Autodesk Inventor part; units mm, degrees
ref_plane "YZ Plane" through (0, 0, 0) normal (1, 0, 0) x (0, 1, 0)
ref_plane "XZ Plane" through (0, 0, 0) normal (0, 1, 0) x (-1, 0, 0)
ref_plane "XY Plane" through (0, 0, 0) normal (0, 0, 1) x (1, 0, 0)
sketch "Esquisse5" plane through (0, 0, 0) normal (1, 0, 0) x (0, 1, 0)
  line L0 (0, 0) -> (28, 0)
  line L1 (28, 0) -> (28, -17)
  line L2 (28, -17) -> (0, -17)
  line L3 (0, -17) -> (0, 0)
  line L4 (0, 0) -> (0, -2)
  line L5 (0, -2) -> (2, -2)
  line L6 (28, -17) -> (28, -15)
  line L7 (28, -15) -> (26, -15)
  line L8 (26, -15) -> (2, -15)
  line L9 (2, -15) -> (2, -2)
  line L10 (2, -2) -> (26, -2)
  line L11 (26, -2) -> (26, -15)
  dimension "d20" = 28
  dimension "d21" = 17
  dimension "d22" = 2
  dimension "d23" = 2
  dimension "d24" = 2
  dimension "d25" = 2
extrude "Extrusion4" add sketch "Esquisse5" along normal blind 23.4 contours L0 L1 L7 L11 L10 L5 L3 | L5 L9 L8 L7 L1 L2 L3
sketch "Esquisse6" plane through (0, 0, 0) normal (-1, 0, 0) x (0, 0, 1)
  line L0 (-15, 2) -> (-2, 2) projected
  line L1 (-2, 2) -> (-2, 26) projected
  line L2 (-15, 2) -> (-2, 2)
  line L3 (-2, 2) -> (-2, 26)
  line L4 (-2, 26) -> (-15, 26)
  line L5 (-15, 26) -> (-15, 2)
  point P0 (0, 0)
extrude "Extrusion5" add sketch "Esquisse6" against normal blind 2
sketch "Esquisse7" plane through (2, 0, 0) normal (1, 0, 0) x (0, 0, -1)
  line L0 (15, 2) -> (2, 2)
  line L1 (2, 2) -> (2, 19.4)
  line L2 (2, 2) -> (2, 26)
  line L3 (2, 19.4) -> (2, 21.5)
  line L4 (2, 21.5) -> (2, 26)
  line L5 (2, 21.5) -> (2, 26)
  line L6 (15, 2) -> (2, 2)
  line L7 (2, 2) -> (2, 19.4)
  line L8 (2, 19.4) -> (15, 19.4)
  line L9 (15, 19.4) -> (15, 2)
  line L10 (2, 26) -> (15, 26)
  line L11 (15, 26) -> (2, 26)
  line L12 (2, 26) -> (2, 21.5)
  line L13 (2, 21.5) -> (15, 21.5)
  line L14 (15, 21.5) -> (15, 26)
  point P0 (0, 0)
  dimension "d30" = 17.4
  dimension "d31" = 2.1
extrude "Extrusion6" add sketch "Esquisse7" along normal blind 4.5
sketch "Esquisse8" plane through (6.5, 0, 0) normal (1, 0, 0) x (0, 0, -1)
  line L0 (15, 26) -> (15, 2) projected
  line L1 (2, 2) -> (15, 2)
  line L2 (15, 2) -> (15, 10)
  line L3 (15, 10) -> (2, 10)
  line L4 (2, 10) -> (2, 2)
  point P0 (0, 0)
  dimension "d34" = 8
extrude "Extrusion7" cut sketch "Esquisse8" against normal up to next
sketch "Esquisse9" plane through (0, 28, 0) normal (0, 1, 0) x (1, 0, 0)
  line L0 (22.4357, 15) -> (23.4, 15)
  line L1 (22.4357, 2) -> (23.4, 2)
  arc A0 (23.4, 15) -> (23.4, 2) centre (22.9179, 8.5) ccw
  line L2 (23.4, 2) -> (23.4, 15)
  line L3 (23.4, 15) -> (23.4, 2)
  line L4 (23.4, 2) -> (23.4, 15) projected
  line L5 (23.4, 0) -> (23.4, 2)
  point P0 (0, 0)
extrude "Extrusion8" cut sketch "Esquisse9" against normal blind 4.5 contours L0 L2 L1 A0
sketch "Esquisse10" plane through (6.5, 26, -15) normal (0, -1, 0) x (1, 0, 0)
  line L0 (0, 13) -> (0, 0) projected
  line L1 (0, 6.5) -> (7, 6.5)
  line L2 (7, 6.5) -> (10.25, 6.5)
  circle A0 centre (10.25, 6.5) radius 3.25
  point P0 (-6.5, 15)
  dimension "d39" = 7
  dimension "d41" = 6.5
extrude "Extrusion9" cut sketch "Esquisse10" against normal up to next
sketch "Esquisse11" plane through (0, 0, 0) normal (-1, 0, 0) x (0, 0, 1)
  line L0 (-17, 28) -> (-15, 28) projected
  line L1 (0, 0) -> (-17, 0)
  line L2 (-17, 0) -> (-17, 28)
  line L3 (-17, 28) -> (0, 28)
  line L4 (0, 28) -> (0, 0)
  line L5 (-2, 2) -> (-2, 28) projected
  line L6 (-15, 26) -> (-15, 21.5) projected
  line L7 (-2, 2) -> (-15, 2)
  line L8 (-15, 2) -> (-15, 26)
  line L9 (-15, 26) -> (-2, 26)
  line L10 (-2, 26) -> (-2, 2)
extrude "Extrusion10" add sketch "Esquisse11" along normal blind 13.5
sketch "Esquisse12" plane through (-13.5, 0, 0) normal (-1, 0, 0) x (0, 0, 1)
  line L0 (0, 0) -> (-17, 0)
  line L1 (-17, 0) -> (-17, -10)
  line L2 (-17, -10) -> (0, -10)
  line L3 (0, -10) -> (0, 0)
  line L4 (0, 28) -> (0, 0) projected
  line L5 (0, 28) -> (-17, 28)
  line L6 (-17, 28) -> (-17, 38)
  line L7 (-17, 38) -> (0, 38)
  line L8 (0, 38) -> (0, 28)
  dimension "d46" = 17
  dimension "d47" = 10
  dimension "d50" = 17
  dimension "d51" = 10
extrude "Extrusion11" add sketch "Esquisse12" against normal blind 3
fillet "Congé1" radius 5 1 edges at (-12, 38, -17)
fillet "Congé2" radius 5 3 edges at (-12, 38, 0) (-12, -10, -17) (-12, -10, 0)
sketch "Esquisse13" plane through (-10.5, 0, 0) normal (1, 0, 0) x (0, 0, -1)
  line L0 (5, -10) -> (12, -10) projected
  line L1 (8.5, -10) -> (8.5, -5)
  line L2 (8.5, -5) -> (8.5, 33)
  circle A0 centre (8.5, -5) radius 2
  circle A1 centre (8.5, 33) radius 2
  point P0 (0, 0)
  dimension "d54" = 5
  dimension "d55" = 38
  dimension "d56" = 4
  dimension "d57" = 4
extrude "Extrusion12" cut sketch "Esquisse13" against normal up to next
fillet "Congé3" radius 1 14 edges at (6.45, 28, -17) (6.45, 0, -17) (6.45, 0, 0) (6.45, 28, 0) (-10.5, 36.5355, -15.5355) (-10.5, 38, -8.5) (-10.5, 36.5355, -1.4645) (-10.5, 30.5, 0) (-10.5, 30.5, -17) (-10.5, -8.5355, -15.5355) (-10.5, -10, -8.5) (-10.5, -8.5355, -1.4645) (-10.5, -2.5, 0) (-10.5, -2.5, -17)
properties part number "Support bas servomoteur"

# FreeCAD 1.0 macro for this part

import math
import FreeCAD as App
import Part
import Sketcher
from FreeCAD import Vector


def edges_at(feature, points):
    """Names of the edges that pass closest to the given points."""
    edges = feature.Shape.Edges
    near = lambda p: min(range(len(edges)), key=lambda i: edges[i].distToShape(Part.Vertex(*p))[0])
    return sorted({f"Edge{near(p) + 1}" for p in points})

doc = App.newDocument("Part")
body = doc.addObject("PartDesign::Body", "Body")

sketch1 = doc.addObject("Sketcher::SketchObject", "Sketch")
body.addObject(sketch1)
sketch1.AttachmentSupport = (doc.YZ_Plane, [""])
sketch1.MapMode = "FlatFace"
sketch1.addGeometry([
    Part.LineSegment(Vector(28, 0, 0), Vector(0, 0, 0)),
    Part.LineSegment(Vector(0, 0, 0), Vector(0, -17, 0)),
    Part.LineSegment(Vector(0, -17, 0), Vector(28, -17, 0)),
    Part.LineSegment(Vector(28, -17, 0), Vector(28, 0, 0)),
    Part.LineSegment(Vector(26, -2, 0), Vector(26, -15, 0)),
    Part.LineSegment(Vector(26, -15, 0), Vector(2, -15, 0)),
    Part.LineSegment(Vector(2, -15, 0), Vector(2, -2, 0)),
    Part.LineSegment(Vector(2, -2, 0), Vector(26, -2, 0)),
], False)
sketch1.addConstraint([
    Sketcher.Constraint("Coincident", 0, 2, 1, 1),
    Sketcher.Constraint("Coincident", 1, 2, 2, 1),
    Sketcher.Constraint("Coincident", 2, 2, 3, 1),
    Sketcher.Constraint("Coincident", 3, 2, 0, 1),
    Sketcher.Constraint("Coincident", 4, 2, 5, 1),
    Sketcher.Constraint("Coincident", 5, 2, 6, 1),
    Sketcher.Constraint("Coincident", 6, 2, 7, 1),
    Sketcher.Constraint("Coincident", 7, 2, 4, 1),
    Sketcher.Constraint("Horizontal", 0),
    Sketcher.Constraint("Vertical", 1),
    Sketcher.Constraint("Horizontal", 2),
    Sketcher.Constraint("Vertical", 3),
    Sketcher.Constraint("Vertical", 4),
    Sketcher.Constraint("Horizontal", 5),
    Sketcher.Constraint("Vertical", 6),
    Sketcher.Constraint("Horizontal", 7),
    Sketcher.Constraint("Coincident", 0, 2, -1, 1),
    Sketcher.Constraint("DistanceX", 0, 2, 0, 1, 28.0),
    Sketcher.Constraint("DistanceY", 1, 2, 1, 1, 17.0),
    Sketcher.Constraint("DistanceX", -1, 1, 5, 2, 2.0),
    Sketcher.Constraint("DistanceY", 6, 2, -1, 1, 2.0),
    Sketcher.Constraint("DistanceX", 4, 2, 2, 2, 2.0),
    Sketcher.Constraint("DistanceY", 2, 2, 4, 2, 2.0),
])
pad1 = doc.addObject("PartDesign::Pad", "Pad")
body.addObject(pad1)
pad1.Profile = sketch1
pad1.Length = 23.4

sketch2 = doc.addObject("Sketcher::SketchObject", "Sketch001")
body.addObject(sketch2)
sketch2.AttachmentSupport = (doc.YZ_Plane, [""])
sketch2.MapMode = "FlatFace"
sketch2.addGeometry([
    Part.LineSegment(Vector(26, -15, 0), Vector(2, -15, 0)),
    Part.LineSegment(Vector(2, -15, 0), Vector(2, -2, 0)),
    Part.LineSegment(Vector(2, -2, 0), Vector(26, -2, 0)),
    Part.LineSegment(Vector(26, -2, 0), Vector(26, -15, 0)),
], False)
sketch2.addConstraint([
    Sketcher.Constraint("Coincident", 0, 2, 1, 1),
    Sketcher.Constraint("Coincident", 1, 2, 2, 1),
    Sketcher.Constraint("Coincident", 2, 2, 3, 1),
    Sketcher.Constraint("Coincident", 3, 2, 0, 1),
    Sketcher.Constraint("Horizontal", 0),
    Sketcher.Constraint("Vertical", 1),
    Sketcher.Constraint("Horizontal", 2),
    Sketcher.Constraint("Vertical", 3),
    Sketcher.Constraint("DistanceX", 0, 2, 0, 1, 24.0),
    Sketcher.Constraint("DistanceY", 1, 1, 1, 2, 13.0),
    Sketcher.Constraint("DistanceX", -1, 1, 0, 2, 2.0),
    Sketcher.Constraint("DistanceY", 0, 2, -1, 1, 15.0),
])
pad2 = doc.addObject("PartDesign::Pad", "Pad001")
body.addObject(pad2)
pad2.Profile = sketch2
pad2.Length = 2

sketch3 = doc.addObject("Sketcher::SketchObject", "Sketch002")
body.addObject(sketch3)
sketch3.AttachmentSupport = (doc.YZ_Plane, [""])
sketch3.MapMode = "FlatFace"
sketch3.AttachmentOffset = App.Placement(Vector(0, 0, 2), App.Rotation())
sketch3.addGeometry([
    Part.LineSegment(Vector(26, -2, 0), Vector(21.5, -2, 0)),
    Part.LineSegment(Vector(21.5, -2, 0), Vector(21.5, -15, 0)),
    Part.LineSegment(Vector(21.5, -15, 0), Vector(26, -15, 0)),
    Part.LineSegment(Vector(26, -15, 0), Vector(26, -2, 0)),
    Part.LineSegment(Vector(2, -2, 0), Vector(2, -15, 0)),
    Part.LineSegment(Vector(2, -15, 0), Vector(19.4, -15, 0)),
    Part.LineSegment(Vector(19.4, -15, 0), Vector(19.4, -2, 0)),
    Part.LineSegment(Vector(19.4, -2, 0), Vector(2, -2, 0)),
], False)
sketch3.addConstraint([
    Sketcher.Constraint("Coincident", 0, 2, 1, 1),
    Sketcher.Constraint("Coincident", 1, 2, 2, 1),
    Sketcher.Constraint("Coincident", 2, 2, 3, 1),
    Sketcher.Constraint("Coincident", 3, 2, 0, 1),
    Sketcher.Constraint("Coincident", 4, 2, 5, 1),
    Sketcher.Constraint("Coincident", 5, 2, 6, 1),
    Sketcher.Constraint("Coincident", 6, 2, 7, 1),
    Sketcher.Constraint("Coincident", 7, 2, 4, 1),
    Sketcher.Constraint("Horizontal", 0),
    Sketcher.Constraint("Vertical", 1),
    Sketcher.Constraint("Horizontal", 2),
    Sketcher.Constraint("Vertical", 3),
    Sketcher.Constraint("Vertical", 4),
    Sketcher.Constraint("Horizontal", 5),
    Sketcher.Constraint("Vertical", 6),
    Sketcher.Constraint("Horizontal", 7),
    Sketcher.Constraint("Horizontal", 2, 2, 4, 2),
    Sketcher.Constraint("Horizontal", 3, 2, 6, 2),
    Sketcher.Constraint("DistanceX", 5, 1, 5, 2, 17.4),
    Sketcher.Constraint("DistanceX", 5, 2, 1, 2, 2.1),
    Sketcher.Constraint("DistanceY", 1, 2, 1, 1, 13.0),
    Sketcher.Constraint("DistanceX", 0, 2, 0, 1, 4.5),
    Sketcher.Constraint("DistanceY", 0, 2, -1, 1, 2.0),
    Sketcher.Constraint("DistanceX", -1, 1, 2, 2, 26.0),
])
pad3 = doc.addObject("PartDesign::Pad", "Pad002")
body.addObject(pad3)
pad3.Profile = sketch3
pad3.Length = 4.5

sketch4 = doc.addObject("Sketcher::SketchObject", "Sketch003")
body.addObject(sketch4)
sketch4.AttachmentSupport = (doc.YZ_Plane, [""])
sketch4.MapMode = "FlatFace"
sketch4.AttachmentOffset = App.Placement(Vector(0, 0, 6.5), App.Rotation())
sketch4.addGeometry([
    Part.LineSegment(Vector(2, -15, 0), Vector(10, -15, 0)),
    Part.LineSegment(Vector(10, -15, 0), Vector(10, -2, 0)),
    Part.LineSegment(Vector(10, -2, 0), Vector(2, -2, 0)),
    Part.LineSegment(Vector(2, -2, 0), Vector(2, -15, 0)),
], False)
sketch4.addConstraint([
    Sketcher.Constraint("Coincident", 0, 2, 1, 1),
    Sketcher.Constraint("Coincident", 1, 2, 2, 1),
    Sketcher.Constraint("Coincident", 2, 2, 3, 1),
    Sketcher.Constraint("Coincident", 3, 2, 0, 1),
    Sketcher.Constraint("Horizontal", 0),
    Sketcher.Constraint("Vertical", 1),
    Sketcher.Constraint("Horizontal", 2),
    Sketcher.Constraint("Vertical", 3),
    Sketcher.Constraint("DistanceX", 0, 1, 0, 2, 8.0),
    Sketcher.Constraint("DistanceY", 1, 1, 1, 2, 13.0),
    Sketcher.Constraint("DistanceX", -1, 1, 0, 2, 10.0),
    Sketcher.Constraint("DistanceY", 0, 2, -1, 1, 15.0),
])
pocket1 = doc.addObject("PartDesign::Pocket", "Pocket")
body.addObject(pocket1)
pocket1.Profile = sketch4
pocket1.Type = "UpToFirst"

sketch5 = doc.addObject("Sketcher::SketchObject", "Sketch004")
body.addObject(sketch5)
sketch5.AttachmentSupport = (doc.XZ_Plane, [""])
sketch5.MapMode = "FlatFace"
sketch5.AttachmentOffset = App.Placement(Vector(0, 0, -28), App.Rotation())
sketch5.addGeometry([
    Part.LineSegment(Vector(23.4, -15, 0), Vector(22.4, -15, 0)),
    Part.ArcOfCircle(Part.Circle(Vector(22.9, -8.5, 0), Vector(0, 0, 1), 6.5), math.radians(94), math.radians(266)),
    Part.LineSegment(Vector(22.4, -2, 0), Vector(23.4, -2, 0)),
    Part.LineSegment(Vector(23.4, -2, 0), Vector(23.4, -15, 0)),
], False)
sketch5.addConstraint([
    Sketcher.Constraint("Coincident", 0, 2, 1, 2),
    Sketcher.Constraint("Coincident", 1, 1, 2, 1),
    Sketcher.Constraint("Coincident", 2, 2, 3, 1),
    Sketcher.Constraint("Coincident", 3, 2, 0, 1),
    Sketcher.Constraint("Horizontal", 0),
    Sketcher.Constraint("Horizontal", 2),
    Sketcher.Constraint("Vertical", 3),
    Sketcher.Constraint("Vertical", 0, 2, 1, 1),
    Sketcher.Constraint("DistanceY", 3, 2, 3, 1, 13.0),
    Sketcher.Constraint("DistanceY", 0, 2, -1, 1, 15.0),
    Sketcher.Constraint("DistanceX", -1, 1, 2, 2, 23.4),
    Sketcher.Constraint("Radius", 1, 6.5179),
    Sketcher.Constraint("DistanceX", 0, 2, 0, 1, 0.9643),
])
pocket2 = doc.addObject("PartDesign::Pocket", "Pocket001")
body.addObject(pocket2)
pocket2.Profile = sketch5
pocket2.Length = 4.5
pocket2.Reversed = True

sketch6 = doc.addObject("Sketcher::SketchObject", "Sketch005")
body.addObject(sketch6)
sketch6.AttachmentSupport = (doc.XZ_Plane, [""])
sketch6.MapMode = "FlatFace"
sketch6.AttachmentOffset = App.Placement(Vector(0, 0, -26), App.Rotation())
sketch6.addGeometry(Part.Circle(Vector(16.8, -8.5, 0), Vector(0, 0, 1), 3.2), False)
sketch6.addConstraint([
    Sketcher.Constraint("Diameter", 0, 6.5),
    Sketcher.Constraint("DistanceY", 0, 3, -1, 1, 8.5),
    Sketcher.Constraint("DistanceX", -1, 1, 0, 3, 16.75),
])
pocket3 = doc.addObject("PartDesign::Pocket", "Pocket002")
body.addObject(pocket3)
pocket3.Profile = sketch6
pocket3.Length = 2

sketch7 = doc.addObject("Sketcher::SketchObject", "Sketch006")
body.addObject(sketch7)
sketch7.AttachmentSupport = (doc.YZ_Plane, [""])
sketch7.MapMode = "FlatFace"
sketch7.addGeometry([
    Part.LineSegment(Vector(28, -2, 0), Vector(28, -17, 0)),
    Part.LineSegment(Vector(28, -17, 0), Vector(0, -17, 0)),
    Part.LineSegment(Vector(0, -17, 0), Vector(0, 0, 0)),
    Part.LineSegment(Vector(0, 0, 0), Vector(28, 0, 0)),
    Part.LineSegment(Vector(28, 0, 0), Vector(28, -2, 0)),
    Part.LineSegment(Vector(26, -15, 0), Vector(26, -2, 0)),
    Part.LineSegment(Vector(26, -2, 0), Vector(2, -2, 0)),
    Part.LineSegment(Vector(2, -2, 0), Vector(2, -15, 0)),
    Part.LineSegment(Vector(2, -15, 0), Vector(26, -15, 0)),
], False)
sketch7.addConstraint([
    Sketcher.Constraint("Coincident", 0, 2, 1, 1),
    Sketcher.Constraint("Coincident", 1, 2, 2, 1),
    Sketcher.Constraint("Coincident", 2, 2, 3, 1),
    Sketcher.Constraint("Coincident", 3, 2, 4, 1),
    Sketcher.Constraint("Coincident", 4, 2, 0, 1),
    Sketcher.Constraint("Coincident", 5, 2, 6, 1),
    Sketcher.Constraint("Coincident", 6, 2, 7, 1),
    Sketcher.Constraint("Coincident", 7, 2, 8, 1),
    Sketcher.Constraint("Coincident", 8, 2, 5, 1),
    Sketcher.Constraint("Vertical", 0),
    Sketcher.Constraint("Horizontal", 1),
    Sketcher.Constraint("Vertical", 2),
    Sketcher.Constraint("Horizontal", 3),
    Sketcher.Constraint("Vertical", 4),
    Sketcher.Constraint("Vertical", 5),
    Sketcher.Constraint("Horizontal", 6),
    Sketcher.Constraint("Vertical", 7),
    Sketcher.Constraint("Horizontal", 8),
    Sketcher.Constraint("Coincident", 2, 2, -1, 1),
    Sketcher.Constraint("Horizontal", 4, 2, 5, 2),
    Sketcher.Constraint("DistanceX", 1, 2, 1, 1, 28.0),
    Sketcher.Constraint("DistanceX", 6, 2, 6, 1, 24.0),
    Sketcher.Constraint("DistanceY", 0, 2, 0, 1, 15.0),
    Sketcher.Constraint("DistanceY", 2, 1, 2, 2, 17.0),
    Sketcher.Constraint("DistanceY", 5, 1, 5, 2, 13.0),
    Sketcher.Constraint("DistanceX", -1, 1, 5, 2, 26.0),
])
pad4 = doc.addObject("PartDesign::Pad", "Pad003")
body.addObject(pad4)
pad4.Profile = sketch7
pad4.Length = 13.5
pad4.Reversed = True

sketch8 = doc.addObject("Sketcher::SketchObject", "Sketch007")
body.addObject(sketch8)
sketch8.AttachmentSupport = (doc.YZ_Plane, [""])
sketch8.MapMode = "FlatFace"
sketch8.AttachmentOffset = App.Placement(Vector(0, 0, -13.5), App.Rotation())
sketch8.addGeometry([
    Part.LineSegment(Vector(-10, 0, 0), Vector(0, 0, 0)),
    Part.LineSegment(Vector(0, 0, 0), Vector(0, -17, 0)),
    Part.LineSegment(Vector(0, -17, 0), Vector(-10, -17, 0)),
    Part.LineSegment(Vector(-10, -17, 0), Vector(-10, 0, 0)),
    Part.LineSegment(Vector(28, -17, 0), Vector(28, 0, 0)),
    Part.LineSegment(Vector(28, 0, 0), Vector(38, 0, 0)),
    Part.LineSegment(Vector(38, 0, 0), Vector(38, -17, 0)),
    Part.LineSegment(Vector(38, -17, 0), Vector(28, -17, 0)),
], False)
sketch8.addConstraint([
    Sketcher.Constraint("Coincident", 0, 2, 1, 1),
    Sketcher.Constraint("Coincident", 1, 2, 2, 1),
    Sketcher.Constraint("Coincident", 2, 2, 3, 1),
    Sketcher.Constraint("Coincident", 3, 2, 0, 1),
    Sketcher.Constraint("Coincident", 4, 2, 5, 1),
    Sketcher.Constraint("Coincident", 5, 2, 6, 1),
    Sketcher.Constraint("Coincident", 6, 2, 7, 1),
    Sketcher.Constraint("Coincident", 7, 2, 4, 1),
    Sketcher.Constraint("Horizontal", 0),
    Sketcher.Constraint("Vertical", 1),
    Sketcher.Constraint("Horizontal", 2),
    Sketcher.Constraint("Vertical", 3),
    Sketcher.Constraint("Vertical", 4),
    Sketcher.Constraint("Horizontal", 5),
    Sketcher.Constraint("Vertical", 6),
    Sketcher.Constraint("Horizontal", 7),
    Sketcher.Constraint("Coincident", 0, 2, -1, 1),
    Sketcher.Constraint("PointOnObject", 4, 2, -1),
    Sketcher.Constraint("Horizontal", 2, 2, 6, 2),
    Sketcher.Constraint("Equal", 2, 5),
    Sketcher.Constraint("DistanceX", 0, 1, 0, 2, 10.0),
    Sketcher.Constraint("DistanceY", 1, 2, 1, 1, 17.0),
    Sketcher.Constraint("DistanceX", -1, 1, 4, 2, 28.0),
])
pad5 = doc.addObject("PartDesign::Pad", "Pad004")
body.addObject(pad5)
pad5.Profile = sketch8
pad5.Length = 3
doc.recompute()

fillet = doc.addObject("PartDesign::Fillet", "Fillet")
body.addObject(fillet)
fillet.Base = (pad5, edges_at(pad5, [(-12, 38, -17)]))
fillet.Radius = 5
doc.recompute()

fillet2 = doc.addObject("PartDesign::Fillet", "Fillet001")
body.addObject(fillet2)
fillet2.Base = (fillet, edges_at(fillet, [(-12, 38, 0), (-12, -10, -17), (-12, -10, 0)]))
fillet2.Radius = 5

sketch9 = doc.addObject("Sketcher::SketchObject", "Sketch008")
body.addObject(sketch9)
sketch9.AttachmentSupport = (doc.YZ_Plane, [""])
sketch9.MapMode = "FlatFace"
sketch9.AttachmentOffset = App.Placement(Vector(0, 0, -10.5), App.Rotation())
sketch9.addGeometry([
    Part.Circle(Vector(-5, -8.5, 0), Vector(0, 0, 1), 2),
    Part.Circle(Vector(33, -8.5, 0), Vector(0, 0, 1), 2),
], False)
sketch9.addConstraint([
    Sketcher.Constraint("Equal", 0, 1),
    Sketcher.Constraint("Horizontal", 0, 3, 1, 3),
    Sketcher.Constraint("Diameter", 0, 4.0),
    Sketcher.Constraint("DistanceX", 0, 3, -1, 1, 5.0),
    Sketcher.Constraint("DistanceX", 0, 3, 1, 3, 38.0),
    Sketcher.Constraint("DistanceY", 0, 3, -1, 1, 8.5),
])
pocket4 = doc.addObject("PartDesign::Pocket", "Pocket003")
body.addObject(pocket4)
pocket4.Profile = sketch9
pocket4.Length = 3
doc.recompute()

fillet3 = doc.addObject("PartDesign::Fillet", "Fillet002")
body.addObject(fillet3)
fillet3.Base = (pocket4, edges_at(pocket4, [
    (6.45, 28, -17),
    (6.45, 0, -17),
    (6.45, 0, 0),
    (6.45, 28, 0),
    (-10.5, 36.535, -15.536),
    (-10.5, 38, -8.5),
    (-10.5, 36.535, -1.464),
    (-10.5, 30.5, 0),
    (-10.5, 30.5, -17),
    (-10.5, -8.536, -15.536),
    (-10.5, -10, -8.5),
    (-10.5, -8.536, -1.464),
    (-10.5, -2.5, 0),
    (-10.5, -2.5, -17),
]))
fillet3.Radius = 1

doc.recompute()
